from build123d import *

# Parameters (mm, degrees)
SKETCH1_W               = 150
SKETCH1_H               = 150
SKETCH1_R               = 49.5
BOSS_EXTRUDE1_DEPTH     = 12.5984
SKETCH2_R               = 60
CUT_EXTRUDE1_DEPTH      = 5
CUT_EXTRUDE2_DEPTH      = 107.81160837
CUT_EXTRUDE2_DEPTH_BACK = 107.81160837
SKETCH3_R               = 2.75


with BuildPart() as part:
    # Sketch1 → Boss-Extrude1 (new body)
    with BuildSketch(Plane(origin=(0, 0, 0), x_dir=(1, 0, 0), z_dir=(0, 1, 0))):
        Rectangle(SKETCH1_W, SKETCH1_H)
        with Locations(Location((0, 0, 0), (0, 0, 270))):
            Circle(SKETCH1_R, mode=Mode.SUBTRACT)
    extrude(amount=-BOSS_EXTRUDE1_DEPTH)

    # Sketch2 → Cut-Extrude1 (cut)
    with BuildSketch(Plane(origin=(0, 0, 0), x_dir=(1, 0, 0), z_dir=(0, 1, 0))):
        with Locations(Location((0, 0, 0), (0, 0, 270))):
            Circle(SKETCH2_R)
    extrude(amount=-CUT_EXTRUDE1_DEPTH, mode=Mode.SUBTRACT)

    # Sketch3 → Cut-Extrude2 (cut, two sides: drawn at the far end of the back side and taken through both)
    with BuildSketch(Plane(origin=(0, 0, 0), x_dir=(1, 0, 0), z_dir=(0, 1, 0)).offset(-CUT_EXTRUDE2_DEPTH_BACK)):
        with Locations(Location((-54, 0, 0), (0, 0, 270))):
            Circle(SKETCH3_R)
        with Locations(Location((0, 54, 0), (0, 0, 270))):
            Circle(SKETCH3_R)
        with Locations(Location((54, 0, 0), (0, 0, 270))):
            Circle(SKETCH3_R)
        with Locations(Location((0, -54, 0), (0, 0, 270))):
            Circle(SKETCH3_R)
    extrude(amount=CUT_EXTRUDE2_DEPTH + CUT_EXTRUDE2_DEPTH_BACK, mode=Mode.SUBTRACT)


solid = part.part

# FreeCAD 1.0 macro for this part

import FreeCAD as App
import Part
import Sketcher

V = App.Vector


def add_polygon(sketch, points):
    """Adds a closed chain of lines whose ends are joined by coincident constraints."""
    first, n = sketch.GeometryCount, len(points)
    for a, b in zip(points, points[1:] + points[:1]):
        sketch.addGeometry(Part.LineSegment(App.Vector(*a, 0), App.Vector(*b, 0)), False)
    for i in range(n):
        sketch.addConstraint(Sketcher.Constraint("Coincident", first + i, 2, first + (i + 1) % n, 1))

doc = App.newDocument("Part")
body = doc.addObject("PartDesign::Body", "Body")

sketch1 = body.newObject("Sketcher::SketchObject", "Sketch")
sketch1.AttachmentSupport = (doc.getObject("XZ_Plane"), [""])
sketch1.MapMode = "FlatFace"
add_polygon(sketch1, [(-75, -75), (-75, 75), (75, 75), (75, -75)])
sketch1.addGeometry(Part.Circle(V(0, 0, 0), V(0, 0, 1), 49.5), False)
sketch1.addConstraint([
    Sketcher.Constraint("Vertical", 0),
    Sketcher.Constraint("Horizontal", 1),
    Sketcher.Constraint("Vertical", 2),
    Sketcher.Constraint("Horizontal", 3),
    Sketcher.Constraint("Coincident", 4, 3, -1, 1),
    Sketcher.Constraint("Symmetric", 0, 2, 2, 2, -1, 1),
    Sketcher.Constraint("Equal", 3, 0),
    Sketcher.Constraint("Diameter", 4, 99.0),
    Sketcher.Constraint("DistanceX", 1, 1, 1, 2, 150.0),
])
pad1 = body.newObject("PartDesign::Pad", "Pad")
pad1.Profile = sketch1
pad1.Length = 12.5984

sketch2 = body.newObject("Sketcher::SketchObject", "Sketch001")
sketch2.AttachmentSupport = (doc.getObject("XZ_Plane"), [""])
sketch2.MapMode = "FlatFace"
sketch2.addGeometry(Part.Circle(V(0, 0, 0), V(0, 0, 1), 60), False)
sketch2.addConstraint([
    Sketcher.Constraint("Coincident", 0, 3, -1, 1),
    Sketcher.Constraint("Diameter", 0, 120.0),
])
pocket1 = body.newObject("PartDesign::Pocket", "Pocket")
pocket1.Profile = sketch2
pocket1.Length = 5
pocket1.Reversed = True

sketch3 = body.newObject("Sketcher::SketchObject", "Sketch002")
sketch3.AttachmentSupport = (doc.getObject("XZ_Plane"), [""])
sketch3.MapMode = "FlatFace"
sketch3.addGeometry([
    Part.Circle(V(-54, 0, 0), V(0, 0, 1), 2.75),
    Part.Circle(V(0, -54, 0), V(0, 0, 1), 2.75),
    Part.Circle(V(54, 0, 0), V(0, 0, 1), 2.75),
    Part.Circle(V(0, 54, 0), V(0, 0, 1), 2.75),
], False)
sketch3.addConstraint([
    Sketcher.Constraint("Equal", 0, 1),
    Sketcher.Constraint("Equal", 1, 2),
    Sketcher.Constraint("Equal", 2, 3),
    Sketcher.Constraint("Symmetric", 0, 3, 2, 3, -1, 1),
    Sketcher.Constraint("Symmetric", 1, 3, 3, 3, -1, 1),
    Sketcher.Constraint("PointOnObject", 0, 3, -1),
    Sketcher.Constraint("PointOnObject", 1, 3, -2),
    Sketcher.Constraint("Diameter", 0, 5.5),
    Sketcher.Constraint("DistanceX", 0, 3, -1, 1, 54.0),
    Sketcher.Constraint("DistanceY", 1, 3, -1, 1, 54.0),
])
pocket2 = body.newObject("PartDesign::Pocket", "Pocket001")
pocket2.Profile = sketch3
pocket2.Type = "ThroughAll"
pocket2.Midplane = True

doc.recompute()
